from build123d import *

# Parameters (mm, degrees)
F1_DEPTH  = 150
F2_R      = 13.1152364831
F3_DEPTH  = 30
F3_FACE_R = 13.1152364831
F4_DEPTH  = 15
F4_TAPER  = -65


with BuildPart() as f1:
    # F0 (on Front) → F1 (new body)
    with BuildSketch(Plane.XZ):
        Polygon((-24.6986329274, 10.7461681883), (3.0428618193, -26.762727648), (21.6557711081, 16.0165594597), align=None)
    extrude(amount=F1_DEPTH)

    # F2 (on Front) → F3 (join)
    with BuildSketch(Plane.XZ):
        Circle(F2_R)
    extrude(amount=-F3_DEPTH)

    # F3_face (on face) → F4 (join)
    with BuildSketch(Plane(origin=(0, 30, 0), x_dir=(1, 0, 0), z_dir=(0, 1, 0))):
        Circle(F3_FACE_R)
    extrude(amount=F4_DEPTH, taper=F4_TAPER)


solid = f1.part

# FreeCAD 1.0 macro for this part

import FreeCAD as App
import Part
import Sketcher

doc = App.newDocument("Part")
params = doc.addObject("Spreadsheet::Sheet", "Params")
for row, (alias, value) in enumerate([
    ("pad1_length", "150 mm"),
    ("pad2_length", "30 mm"),
    ("pad3_length", "15 mm"),
    ("pad3_taper", "65 deg"),
], start=1):
    params.set(f"A{row}", alias)
    params.set(f"B{row}", "=" + value)
    params.setAlias(f"B{row}", alias)

body = doc.addObject("PartDesign::Body", "Body")

# Sketch on XZ plane
sketch1 = doc.addObject("Sketcher::SketchObject", "Sketch")
body.addObject(sketch1)
sketch1.AttachmentSupport = (doc.XZ_Plane, [""])
sketch1.MapMode = "FlatFace"
sketch1.addGeometry([
    Part.LineSegment(App.Vector(-25, 11, 0), App.Vector(3, -27, 0)),
    Part.LineSegment(App.Vector(3, -27, 0), App.Vector(22, 16, 0)),
    Part.LineSegment(App.Vector(22, 16, 0), App.Vector(-25, 11, 0)),
], False)
sketch1.addConstraint([
    Sketcher.Constraint("Coincident", 0, 2, 1, 1),
    Sketcher.Constraint("Coincident", 1, 2, 2, 1),
    Sketcher.Constraint("Coincident", 2, 2, 0, 1),
    Sketcher.Constraint("Equal", 0, 1),
    Sketcher.Constraint("Equal", 1, 2),
    Sketcher.Constraint("DistanceX", -1, 1, 0, 2, 3.042862),
    Sketcher.Constraint("DistanceX", -1, 1, 1, 2, 21.655771),
    Sketcher.Constraint("DistanceY", -1, 1, 1, 2, 16.016559),
    Sketcher.Constraint("DistanceY", -1, 1, 2, 2, 10.746168),
])
pad1 = doc.addObject("PartDesign::Pad", "Pad")
body.addObject(pad1)
pad1.Profile = sketch1
pad1.setExpression("Length", "Params.pad1_length")

# Sketch on XZ plane
sketch2 = doc.addObject("Sketcher::SketchObject", "Sketch001")
body.addObject(sketch2)
sketch2.AttachmentSupport = (doc.XZ_Plane, [""])
sketch2.MapMode = "FlatFace"
sketch2.addGeometry(Part.Circle(App.Vector(0, 0, 0), App.Vector(0, 0, 1), 13), False)
sketch2.addConstraint([
    Sketcher.Constraint("Coincident", 0, 3, -1, 1),
    Sketcher.Constraint("Diameter", 0, 26.230473),
])
pad2 = doc.addObject("PartDesign::Pad", "Pad001")
body.addObject(pad2)
pad2.Profile = sketch2
pad2.setExpression("Length", "Params.pad2_length")
pad2.Reversed = True

# Sketch on XZ plane
sketch3 = doc.addObject("Sketcher::SketchObject", "Sketch002")
body.addObject(sketch3)
sketch3.AttachmentSupport = (doc.XZ_Plane, [""])
sketch3.MapMode = "FlatFace"
sketch3.AttachmentOffset = App.Placement(App.Vector(0, 0, -30), App.Rotation())
sketch3.addGeometry(Part.Circle(App.Vector(0, 0, 0), App.Vector(0, 0, 1), 13), False)
sketch3.addConstraint([
    Sketcher.Constraint("Coincident", 0, 3, -1, 1),
    Sketcher.Constraint("Diameter", 0, 26.230473),
])
pad3 = doc.addObject("PartDesign::Pad", "Pad002")
body.addObject(pad3)
pad3.Profile = sketch3
pad3.setExpression("Length", "Params.pad3_length")
pad3.Reversed = True
pad3.setExpression("TaperAngle", "Params.pad3_taper")

doc.recompute()
